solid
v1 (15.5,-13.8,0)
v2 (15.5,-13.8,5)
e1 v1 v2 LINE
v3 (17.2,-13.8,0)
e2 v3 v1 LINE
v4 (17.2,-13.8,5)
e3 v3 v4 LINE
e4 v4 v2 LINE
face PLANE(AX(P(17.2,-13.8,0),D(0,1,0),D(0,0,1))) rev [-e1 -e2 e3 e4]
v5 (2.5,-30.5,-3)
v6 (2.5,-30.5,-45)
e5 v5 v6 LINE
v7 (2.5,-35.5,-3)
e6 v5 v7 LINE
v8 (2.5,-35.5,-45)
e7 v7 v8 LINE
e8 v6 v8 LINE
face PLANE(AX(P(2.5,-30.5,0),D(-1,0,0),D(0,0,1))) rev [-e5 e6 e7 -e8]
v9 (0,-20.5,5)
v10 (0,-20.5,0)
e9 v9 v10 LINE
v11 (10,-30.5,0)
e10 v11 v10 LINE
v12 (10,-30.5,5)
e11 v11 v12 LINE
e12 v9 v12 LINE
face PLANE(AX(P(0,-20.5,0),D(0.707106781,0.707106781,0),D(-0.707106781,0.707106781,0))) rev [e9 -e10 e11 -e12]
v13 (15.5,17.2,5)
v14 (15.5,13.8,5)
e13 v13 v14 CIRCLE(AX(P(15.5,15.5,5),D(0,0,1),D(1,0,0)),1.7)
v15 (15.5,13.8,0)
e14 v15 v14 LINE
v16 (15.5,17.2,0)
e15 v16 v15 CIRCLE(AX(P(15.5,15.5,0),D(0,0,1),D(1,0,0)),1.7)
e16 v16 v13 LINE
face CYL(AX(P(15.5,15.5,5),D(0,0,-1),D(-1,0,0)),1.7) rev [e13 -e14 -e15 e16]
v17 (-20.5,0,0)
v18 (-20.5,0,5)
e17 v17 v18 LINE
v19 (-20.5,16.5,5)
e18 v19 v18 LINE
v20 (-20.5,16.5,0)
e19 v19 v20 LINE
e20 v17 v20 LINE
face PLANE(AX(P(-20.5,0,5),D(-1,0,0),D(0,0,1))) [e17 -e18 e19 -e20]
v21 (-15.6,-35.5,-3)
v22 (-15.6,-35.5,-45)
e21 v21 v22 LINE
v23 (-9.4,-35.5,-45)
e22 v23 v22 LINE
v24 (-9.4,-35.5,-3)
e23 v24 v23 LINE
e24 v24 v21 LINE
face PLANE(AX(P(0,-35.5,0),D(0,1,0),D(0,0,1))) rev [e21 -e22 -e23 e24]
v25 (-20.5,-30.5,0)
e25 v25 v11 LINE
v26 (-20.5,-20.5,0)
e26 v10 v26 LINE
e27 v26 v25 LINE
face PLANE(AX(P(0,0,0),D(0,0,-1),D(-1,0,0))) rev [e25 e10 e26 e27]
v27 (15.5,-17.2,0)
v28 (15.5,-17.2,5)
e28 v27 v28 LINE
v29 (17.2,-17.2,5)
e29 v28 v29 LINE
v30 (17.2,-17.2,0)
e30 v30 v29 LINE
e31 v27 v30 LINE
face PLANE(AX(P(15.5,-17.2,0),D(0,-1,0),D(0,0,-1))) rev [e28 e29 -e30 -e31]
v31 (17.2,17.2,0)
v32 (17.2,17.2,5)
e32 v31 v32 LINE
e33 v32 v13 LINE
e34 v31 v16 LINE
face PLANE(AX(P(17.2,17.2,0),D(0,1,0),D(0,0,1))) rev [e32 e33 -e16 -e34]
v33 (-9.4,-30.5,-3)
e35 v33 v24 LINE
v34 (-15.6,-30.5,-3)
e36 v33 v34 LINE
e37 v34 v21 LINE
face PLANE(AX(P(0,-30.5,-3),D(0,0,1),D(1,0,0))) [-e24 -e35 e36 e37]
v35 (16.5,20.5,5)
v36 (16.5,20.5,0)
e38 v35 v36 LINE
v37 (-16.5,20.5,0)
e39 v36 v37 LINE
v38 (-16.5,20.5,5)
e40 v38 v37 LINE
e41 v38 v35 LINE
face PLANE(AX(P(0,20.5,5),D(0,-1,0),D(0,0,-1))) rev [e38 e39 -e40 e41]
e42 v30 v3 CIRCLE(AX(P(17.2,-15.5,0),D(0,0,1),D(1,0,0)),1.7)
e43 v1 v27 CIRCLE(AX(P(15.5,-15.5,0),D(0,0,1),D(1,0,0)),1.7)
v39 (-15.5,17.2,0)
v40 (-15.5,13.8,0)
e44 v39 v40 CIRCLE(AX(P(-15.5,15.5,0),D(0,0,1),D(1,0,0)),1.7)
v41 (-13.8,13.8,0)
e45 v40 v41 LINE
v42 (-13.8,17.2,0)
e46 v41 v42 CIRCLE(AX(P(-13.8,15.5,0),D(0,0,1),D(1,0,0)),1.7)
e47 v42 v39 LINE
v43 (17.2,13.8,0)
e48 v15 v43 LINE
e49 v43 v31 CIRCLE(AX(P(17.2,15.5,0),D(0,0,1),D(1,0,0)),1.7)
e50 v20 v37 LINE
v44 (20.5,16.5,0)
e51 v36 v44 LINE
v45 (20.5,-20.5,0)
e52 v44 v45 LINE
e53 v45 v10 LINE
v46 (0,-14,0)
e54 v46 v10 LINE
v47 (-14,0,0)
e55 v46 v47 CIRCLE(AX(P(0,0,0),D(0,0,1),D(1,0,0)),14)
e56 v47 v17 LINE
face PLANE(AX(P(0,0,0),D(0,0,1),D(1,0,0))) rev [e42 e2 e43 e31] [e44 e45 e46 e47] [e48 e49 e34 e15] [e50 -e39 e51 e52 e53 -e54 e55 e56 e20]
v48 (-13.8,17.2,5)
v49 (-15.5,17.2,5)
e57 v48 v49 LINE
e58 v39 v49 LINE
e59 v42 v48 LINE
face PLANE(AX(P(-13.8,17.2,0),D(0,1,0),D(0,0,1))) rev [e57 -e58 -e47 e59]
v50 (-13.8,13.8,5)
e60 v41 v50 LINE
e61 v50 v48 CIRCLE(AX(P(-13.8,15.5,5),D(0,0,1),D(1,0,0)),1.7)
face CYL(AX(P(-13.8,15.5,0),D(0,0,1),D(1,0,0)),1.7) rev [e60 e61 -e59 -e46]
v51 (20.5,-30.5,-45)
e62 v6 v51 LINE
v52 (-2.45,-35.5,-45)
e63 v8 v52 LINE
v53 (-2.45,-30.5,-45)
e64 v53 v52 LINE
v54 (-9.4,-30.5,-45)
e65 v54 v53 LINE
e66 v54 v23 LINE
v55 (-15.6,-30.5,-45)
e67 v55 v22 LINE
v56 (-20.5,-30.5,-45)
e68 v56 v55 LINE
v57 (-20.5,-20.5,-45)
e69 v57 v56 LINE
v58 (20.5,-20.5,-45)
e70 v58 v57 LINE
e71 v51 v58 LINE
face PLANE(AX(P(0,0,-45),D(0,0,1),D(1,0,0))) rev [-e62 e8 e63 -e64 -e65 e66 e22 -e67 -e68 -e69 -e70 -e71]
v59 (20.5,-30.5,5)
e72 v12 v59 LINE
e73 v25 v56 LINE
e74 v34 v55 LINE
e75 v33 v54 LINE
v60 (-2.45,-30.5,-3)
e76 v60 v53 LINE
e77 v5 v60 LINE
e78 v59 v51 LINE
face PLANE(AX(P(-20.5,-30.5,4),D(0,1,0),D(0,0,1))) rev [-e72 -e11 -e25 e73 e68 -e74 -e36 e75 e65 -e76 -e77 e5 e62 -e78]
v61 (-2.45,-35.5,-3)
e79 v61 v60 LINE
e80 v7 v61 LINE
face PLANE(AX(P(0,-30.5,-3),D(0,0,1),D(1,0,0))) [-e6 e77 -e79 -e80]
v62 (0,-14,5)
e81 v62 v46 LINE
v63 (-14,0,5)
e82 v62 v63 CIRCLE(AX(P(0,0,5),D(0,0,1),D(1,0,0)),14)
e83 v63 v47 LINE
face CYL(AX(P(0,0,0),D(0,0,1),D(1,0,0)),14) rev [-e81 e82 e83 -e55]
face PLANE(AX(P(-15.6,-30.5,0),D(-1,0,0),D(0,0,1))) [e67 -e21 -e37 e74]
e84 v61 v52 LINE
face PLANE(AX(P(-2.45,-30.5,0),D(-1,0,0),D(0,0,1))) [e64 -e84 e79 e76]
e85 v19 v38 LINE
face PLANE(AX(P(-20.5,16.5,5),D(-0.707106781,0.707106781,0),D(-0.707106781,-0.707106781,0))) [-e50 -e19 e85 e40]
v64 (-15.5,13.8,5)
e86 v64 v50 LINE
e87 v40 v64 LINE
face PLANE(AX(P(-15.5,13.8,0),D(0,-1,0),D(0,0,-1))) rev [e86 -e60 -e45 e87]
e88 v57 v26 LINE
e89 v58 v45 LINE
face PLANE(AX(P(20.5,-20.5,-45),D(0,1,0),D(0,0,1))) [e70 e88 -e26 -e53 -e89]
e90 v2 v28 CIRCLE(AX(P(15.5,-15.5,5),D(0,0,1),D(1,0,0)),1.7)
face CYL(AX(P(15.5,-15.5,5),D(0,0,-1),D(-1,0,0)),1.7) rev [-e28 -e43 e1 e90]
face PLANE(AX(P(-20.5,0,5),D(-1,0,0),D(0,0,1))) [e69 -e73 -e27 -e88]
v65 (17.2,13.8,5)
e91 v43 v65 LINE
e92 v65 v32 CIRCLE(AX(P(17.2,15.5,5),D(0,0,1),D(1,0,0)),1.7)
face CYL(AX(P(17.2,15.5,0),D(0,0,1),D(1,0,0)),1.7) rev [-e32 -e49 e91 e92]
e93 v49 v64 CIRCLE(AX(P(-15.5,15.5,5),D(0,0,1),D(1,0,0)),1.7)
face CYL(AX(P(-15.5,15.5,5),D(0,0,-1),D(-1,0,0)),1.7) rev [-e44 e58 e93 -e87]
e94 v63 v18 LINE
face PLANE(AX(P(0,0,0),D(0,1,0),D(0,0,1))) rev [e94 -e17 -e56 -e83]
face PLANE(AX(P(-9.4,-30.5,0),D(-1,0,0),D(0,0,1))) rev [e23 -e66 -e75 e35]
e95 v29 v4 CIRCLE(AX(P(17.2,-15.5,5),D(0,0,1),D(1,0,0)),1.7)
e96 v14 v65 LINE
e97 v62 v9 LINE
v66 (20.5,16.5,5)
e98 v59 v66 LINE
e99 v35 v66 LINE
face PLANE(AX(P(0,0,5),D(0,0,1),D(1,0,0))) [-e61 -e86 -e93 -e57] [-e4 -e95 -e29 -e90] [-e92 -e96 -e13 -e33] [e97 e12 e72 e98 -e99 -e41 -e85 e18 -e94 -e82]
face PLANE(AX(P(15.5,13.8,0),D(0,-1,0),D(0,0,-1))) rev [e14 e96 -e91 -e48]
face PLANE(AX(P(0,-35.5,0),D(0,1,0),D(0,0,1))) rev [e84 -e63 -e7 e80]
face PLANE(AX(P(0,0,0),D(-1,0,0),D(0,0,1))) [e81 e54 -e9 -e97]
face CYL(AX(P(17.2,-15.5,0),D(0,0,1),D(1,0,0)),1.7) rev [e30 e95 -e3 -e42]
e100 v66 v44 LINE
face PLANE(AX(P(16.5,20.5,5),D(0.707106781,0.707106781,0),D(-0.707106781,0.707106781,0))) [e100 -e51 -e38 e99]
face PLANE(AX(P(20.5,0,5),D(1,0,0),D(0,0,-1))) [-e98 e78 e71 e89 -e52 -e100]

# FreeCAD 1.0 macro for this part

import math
import FreeCAD as App
import Part
import Sketcher

V = App.Vector
Q = App.Units.Quantity

doc = App.newDocument("Part")
body = doc.addObject("PartDesign::Body", "Body")

# Sketch on XY plane
sketch1 = doc.addObject("Sketcher::SketchObject", "Sketch")
body.addObject(sketch1)
sketch1.AttachmentSupport = (doc.XY_Plane, [""])
sketch1.MapMode = "FlatFace"
sketch1.addGeometry(Part.LineSegment(V(-20.5, -16.5, 0), V(-16.5, -20.5, 0)), False)
sketch1.addGeometry(Part.LineSegment(V(-16.5, -20.5, 0), V(16.5, -20.5, 0)), False)
sketch1.addGeometry(Part.LineSegment(V(16.5, -20.5, 0), V(20.5, -16.5, 0)), False)
sketch1.addGeometry(Part.LineSegment(V(20.5, -16.5, 0), V(20.5, 16.5, 0)), False)
sketch1.addGeometry(Part.LineSegment(V(20.5, 16.5, 0), V(16.5, 20.5, 0)), False)
sketch1.addGeometry(Part.LineSegment(V(16.5, 20.5, 0), V(-16.5, 20.5, 0)), False)
sketch1.addGeometry(Part.LineSegment(V(-16.5, 20.5, 0), V(-20.5, 16.5, 0)), False)
sketch1.addGeometry(Part.LineSegment(V(-20.5, 16.5, 0), V(-20.5, -16.5, 0)), False)
sketch1.addGeometry(Part.Circle(V(-15.5, -15.5, 0), V(0, 0, 1), 1.7), False)
sketch1.addGeometry(Part.Circle(V(15.5, -15.5, 0), V(0, 0, 1), 1.7), False)
sketch1.addGeometry(Part.Circle(V(-15.5, 15.5, 0), V(0, 0, 1), 1.7), False)
sketch1.addGeometry(Part.Circle(V(0, 0, 0), V(0, 0, 1), 11), False)
sketch1.addGeometry(Part.Circle(V(15.5, 15.5, 0), V(0, 0, 1), 1.7), False)
sketch1.addConstraint(Sketcher.Constraint("Coincident", 0, 2, 1, 1))
sketch1.addConstraint(Sketcher.Constraint("Coincident", 1, 2, 2, 1))
sketch1.addConstraint(Sketcher.Constraint("Coincident", 2, 2, 3, 1))
sketch1.addConstraint(Sketcher.Constraint("Coincident", 3, 2, 4, 1))
sketch1.addConstraint(Sketcher.Constraint("Coincident", 4, 2, 5, 1))
sketch1.addConstraint(Sketcher.Constraint("Coincident", 5, 2, 6, 1))
sketch1.addConstraint(Sketcher.Constraint("Coincident", 6, 2, 7, 1))
sketch1.addConstraint(Sketcher.Constraint("Coincident", 7, 2, 0, 1))
sketch1.addConstraint(Sketcher.Constraint("Horizontal", 1))
sketch1.addConstraint(Sketcher.Constraint("Vertical", 3))
sketch1.addConstraint(Sketcher.Constraint("Horizontal", 5))
sketch1.addConstraint(Sketcher.Constraint("Vertical", 7))
sketch1.addConstraint(Sketcher.Constraint("Coincident", 11, 3, -1, 1))
sketch1.addConstraint(Sketcher.Constraint("Equal", 8, 9))
sketch1.addConstraint(Sketcher.Constraint("Equal", 9, 10))
sketch1.addConstraint(Sketcher.Constraint("Equal", 10, 12))
sketch1.addConstraint(Sketcher.Constraint("Symmetric", 9, 3, 10, 3, -1, 1))
sketch1.addConstraint(Sketcher.Constraint("Symmetric", 8, 3, 12, 3, -1, 1))
sketch1.addConstraint(Sketcher.Constraint("Symmetric", 0, 2, 4, 2, -1, 1))
sketch1.addConstraint(Sketcher.Constraint("Symmetric", 2, 2, 6, 2, -1, 1))
sketch1.addConstraint(Sketcher.Constraint("Symmetric", 8, 3, 9, 3, -2))
sketch1.addConstraint(Sketcher.Constraint("Perpendicular", 0, 2))
sketch1.addConstraint(Sketcher.Constraint("Perpendicular", 2, 4))
sketch1.addConstraint(Sketcher.Constraint("Perpendicular", 4, 6))
sketch1.addConstraint(Sketcher.Constraint("Horizontal", 3, 2, 6, 2))
sketch1.addConstraint(Sketcher.Constraint("Vertical", 1, 2, 4, 2))
sketch1.addConstraint(Sketcher.Constraint("Equal", 5, 3))
sketch1.addConstraint(Sketcher.Constraint("Diameter", 11, 22.0))
sketch1.addConstraint(Sketcher.Constraint("Diameter", 8, 3.4))
sketch1.addConstraint(Sketcher.Constraint("DistanceX", 1, 1, 1, 2, 33.0))
sketch1.addConstraint(Sketcher.Constraint("DistanceX", 8, 3, 9, 3, 31.0))
sketch1.addConstraint(Sketcher.Constraint("DistanceY", 8, 3, 10, 3, 31.0))
sketch1.addConstraint(Sketcher.Constraint("DistanceY", 0, 2, 8, 3, 5.0))
pad1 = doc.addObject("PartDesign::Pad", "Pad")
body.addObject(pad1)
pad1.Profile = sketch1
pad1.Length = 5

# Sketch on XY plane
sketch2 = doc.addObject("Sketcher::SketchObject", "Sketch001")
body.addObject(sketch2)
sketch2.AttachmentSupport = (doc.XY_Plane, [""])
sketch2.MapMode = "FlatFace"
sketch2.addGeometry(Part.LineSegment(V(-20, -30, 0), V(-20, -16, 0)), False)
sketch2.addGeometry(Part.LineSegment(V(-20, -16, 0), V(-16, -20, 0)), False)
sketch2.addGeometry(Part.LineSegment(V(-16, -20, 0), V(16, -20, 0)), False)
sketch2.addGeometry(Part.LineSegment(V(16, -20, 0), V(20, -16, 0)), False)
sketch2.addGeometry(Part.LineSegment(V(20, -16, 0), V(20, -30, 0)), False)
sketch2.addGeometry(Part.LineSegment(V(20, -30, 0), V(-20, -30, 0)), False)
sketch2.addConstraint(Sketcher.Constraint("Coincident", 0, 2, 1, 1))
sketch2.addConstraint(Sketcher.Constraint("Coincident", 1, 2, 2, 1))
sketch2.addConstraint(Sketcher.Constraint("Coincident", 2, 2, 3, 1))
sketch2.addConstraint(Sketcher.Constraint("Coincident", 3, 2, 4, 1))
sketch2.addConstraint(Sketcher.Constraint("Coincident", 4, 2, 5, 1))
sketch2.addConstraint(Sketcher.Constraint("Coincident", 5, 2, 0, 1))
sketch2.addConstraint(Sketcher.Constraint("Vertical", 0))
sketch2.addConstraint(Sketcher.Constraint("Horizontal", 2))
sketch2.addConstraint(Sketcher.Constraint("Vertical", 4))
sketch2.addConstraint(Sketcher.Constraint("Horizontal", 5))
sketch2.addConstraint(Sketcher.Constraint("Symmetric", 0, 2, 3, 2, -2))
sketch2.addConstraint(Sketcher.Constraint("Perpendicular", 1, 3))
sketch2.addConstraint(Sketcher.Constraint("Equal", 1, 3))
sketch2.addConstraint(Sketcher.Constraint("DistanceX", 2, 1, 2, 2, 33.0))
sketch2.addConstraint(Sketcher.Constraint("DistanceX", 5, 2, 5, 1, 41.0))
sketch2.addConstraint(Sketcher.Constraint("DistanceY", 0, 1, 0, 2, 14.0))
sketch2.addConstraint(Sketcher.Constraint("DistanceY", 0, 2, -1, 1, 16.5))
pad2 = doc.addObject("PartDesign::Pad", "Pad001")
body.addObject(pad2)
pad2.Profile = sketch2
pad2.Length = 4

# Sketch on XY plane
sketch3 = doc.addObject("Sketcher::SketchObject", "Sketch002")
body.addObject(sketch3)
sketch3.AttachmentSupport = (doc.XY_Plane, [""])
sketch3.MapMode = "FlatFace"
sketch3.addGeometry(Part.LineSegment(V(20, -20, 0), V(20, -30, 0)), False)
sketch3.addGeometry(Part.LineSegment(V(20, -30, 0), V(-20, -30, 0)), False)
sketch3.addGeometry(Part.LineSegment(V(-20, -30, 0), V(-20, -20, 0)), False)
sketch3.addGeometry(Part.LineSegment(V(-20, -20, 0), V(20, -20, 0)), False)
sketch3.addConstraint(Sketcher.Constraint("Coincident", 0, 2, 1, 1))
sketch3.addConstraint(Sketcher.Constraint("Coincident", 1, 2, 2, 1))
sketch3.addConstraint(Sketcher.Constraint("Coincident", 2, 2, 3, 1))
sketch3.addConstraint(Sketcher.Constraint("Coincident", 3, 2, 0, 1))
sketch3.addConstraint(Sketcher.Constraint("Vertical", 0))
sketch3.addConstraint(Sketcher.Constraint("Horizontal", 1))
sketch3.addConstraint(Sketcher.Constraint("Vertical", 2))
sketch3.addConstraint(Sketcher.Constraint("Horizontal", 3))
sketch3.addConstraint(Sketcher.Constraint("DistanceX", 1, 2, 1, 1, 41.0))
sketch3.addConstraint(Sketcher.Constraint("DistanceY", 0, 2, 0, 1, 10.0))
sketch3.addConstraint(Sketcher.Constraint("DistanceX", -1, 1, 0, 2, 20.5))
sketch3.addConstraint(Sketcher.Constraint("DistanceY", 0, 2, -1, 1, 30.5))
pad3 = doc.addObject("PartDesign::Pad", "Pad002")
body.addObject(pad3)
pad3.Profile = sketch3
pad3.Length = 45
pad3.Reversed = True

# Sketch on XZ plane
sketch4 = doc.addObject("Sketcher::SketchObject", "Sketch003")
body.addObject(sketch4)
sketch4.AttachmentSupport = (doc.XZ_Plane, [""])
sketch4.MapMode = "FlatFace"
sketch4.AttachmentOffset = App.Placement(V(0, 0, 30.5), App.Rotation())
sketch4.addGeometry(Part.LineSegment(V(-14, 4, 0), V(-14, -45, 0)), False)
sketch4.addGeometry(Part.LineSegment(V(-14, -45, 0), V(-7, -45, 0)), False)
sketch4.addGeometry(Part.LineSegment(V(-7, -45, 0), V(-7, 4, 0)), False)
sketch4.addGeometry(Part.LineSegment(V(-7, 4, 0), V(-14, 4, 0)), False)
sketch4.addConstraint(Sketcher.Constraint("Coincident", 0, 2, 1, 1))
sketch4.addConstraint(Sketcher.Constraint("Coincident", 1, 2, 2, 1))
sketch4.addConstraint(Sketcher.Constraint("Coincident", 2, 2, 3, 1))
sketch4.addConstraint(Sketcher.Constraint("Coincident", 3, 2, 0, 1))
sketch4.addConstraint(Sketcher.Constraint("Vertical", 0))
sketch4.addConstraint(Sketcher.Constraint("Horizontal", 1))
sketch4.addConstraint(Sketcher.Constraint("Vertical", 2))
sketch4.addConstraint(Sketcher.Constraint("Horizontal", 3))
sketch4.addConstraint(Sketcher.Constraint("DistanceY", 0, 2, 0, 1, 49.0))
sketch4.addConstraint(Sketcher.Constraint("DistanceX", 1, 1, 1, 2, 6.2))
sketch4.addConstraint(Sketcher.Constraint("DistanceY", 0, 2, -1, 1, 45.0))
sketch4.addConstraint(Sketcher.Constraint("DistanceX", 0, 2, -1, 1, 13.6))
pad4 = doc.addObject("PartDesign::Pad", "Pad003")
body.addObject(pad4)
pad4.Profile = sketch4
pad4.Length = 5

# Sketch on XY plane
sketch5 = doc.addObject("Sketcher::SketchObject", "Sketch004")
body.addObject(sketch5)
sketch5.AttachmentSupport = (doc.XY_Plane, [""])
sketch5.MapMode = "FlatFace"
sketch5.AttachmentOffset = App.Placement(V(0, 0, 5), App.Rotation())
sketch5.addGeometry(Part.LineSegment(V(15.5, 17.2, 0), V(15.5, 13.8, 0)), False)
sketch5.addGeometry(Part.LineSegment(V(15.5, 13.8, 0), V(17.2, 13.8, 0)), False)
sketch5.addGeometry(Part.ArcOfCircle(Part.Circle(V(17.2, 15.5, 0), V(0, 0, 1), 1.7), math.radians(-90), math.radians(90)), False)
sketch5.addGeometry(Part.LineSegment(V(17.2, 17.2, 0), V(15.5, 17.2, 0)), False)
sketch5.addGeometry(Part.LineSegment(V(15.5, -13.8, 0), V(15.5, -17.2, 0)), False)
sketch5.addGeometry(Part.LineSegment(V(15.5, -17.2, 0), V(17.2, -17.2, 0)), False)
sketch5.addGeometry(Part.ArcOfCircle(Part.Circle(V(17.2, -15.5, 0), V(0, 0, 1), 1.7), math.radians(-90), math.radians(90)), False)
sketch5.addGeometry(Part.LineSegment(V(17.2, -13.8, 0), V(15.5, -13.8, 0)), False)
sketch5.addGeometry(Part.LineSegment(V(-15.5, -13.8, 0), V(-15.5, -17.2, 0)), False)
sketch5.addGeometry(Part.LineSegment(V(-15.5, -17.2, 0), V(-13.8, -17.2, 0)), False)
sketch5.addGeometry(Part.ArcOfCircle(Part.Circle(V(-13.8, -15.5, 0), V(0, 0, 1), 1.7), math.radians(-90), math.radians(90)), False)
sketch5.addGeometry(Part.LineSegment(V(-13.8, -13.8, 0), V(-15.5, -13.8, 0)), False)
sketch5.addGeometry(Part.LineSegment(V(-15.5, 17.2, 0), V(-15.5, 13.8, 0)), False)
sketch5.addGeometry(Part.LineSegment(V(-15.5, 13.8, 0), V(-13.8, 13.8, 0)), False)
sketch5.addGeometry(Part.ArcOfCircle(Part.Circle(V(-13.8, 15.5, 0), V(0, 0, 1), 1.7), math.radians(-90), math.radians(90)), False)
sketch5.addGeometry(Part.LineSegment(V(-13.8, 17.2, 0), V(-15.5, 17.2, 0)), False)
sketch5.addConstraint(Sketcher.Constraint("Coincident", 0, 2, 1, 1))
sketch5.addConstraint(Sketcher.Constraint("Tangent", 1, 2, 2, 1))
sketch5.addConstraint(Sketcher.Constraint("Tangent", 2, 2, 3, 1))
sketch5.addConstraint(Sketcher.Constraint("Coincident", 3, 2, 0, 1))
sketch5.addConstraint(Sketcher.Constraint("Coincident", 4, 2, 5, 1))
sketch5.addConstraint(Sketcher.Constraint("Tangent", 5, 2, 6, 1))
sketch5.addConstraint(Sketcher.Constraint("Tangent", 6, 2, 7, 1))
sketch5.addConstraint(Sketcher.Constraint("Coincident", 7, 2, 4, 1))
sketch5.addConstraint(Sketcher.Constraint("Coincident", 8, 2, 9, 1))
sketch5.addConstraint(Sketcher.Constraint("Tangent", 9, 2, 10, 1))
sketch5.addConstraint(Sketcher.Constraint("Tangent", 10, 2, 11, 1))
sketch5.addConstraint(Sketcher.Constraint("Coincident", 11, 2, 8, 1))
sketch5.addConstraint(Sketcher.Constraint("Coincident", 12, 2, 13, 1))
sketch5.addConstraint(Sketcher.Constraint("Tangent", 13, 2, 14, 1))
sketch5.addConstraint(Sketcher.Constraint("Tangent", 14, 2, 15, 1))
sketch5.addConstraint(Sketcher.Constraint("Coincident", 15, 2, 12, 1))
sketch5.addConstraint(Sketcher.Constraint("Vertical", 0))
sketch5.addConstraint(Sketcher.Constraint("Horizontal", 1))
sketch5.addConstraint(Sketcher.Constraint("Horizontal", 3))
sketch5.addConstraint(Sketcher.Constraint("Vertical", 4))
sketch5.addConstraint(Sketcher.Constraint("Horizontal", 5))
sketch5.addConstraint(Sketcher.Constraint("Horizontal", 7))
sketch5.addConstraint(Sketcher.Constraint("Vertical", 8))
sketch5.addConstraint(Sketcher.Constraint("Horizontal", 9))
sketch5.addConstraint(Sketcher.Constraint("Horizontal", 11))
sketch5.addConstraint(Sketcher.Constraint("Vertical", 12))
sketch5.addConstraint(Sketcher.Constraint("Horizontal", 13))
sketch5.addConstraint(Sketcher.Constraint("Horizontal", 15))
sketch5.addConstraint(Sketcher.Constraint("Equal", 2, 6))
sketch5.addConstraint(Sketcher.Constraint("Equal", 6, 10))
sketch5.addConstraint(Sketcher.Constraint("Equal", 10, 14))
sketch5.addConstraint(Sketcher.Constraint("Symmetric", 3, 2, 8, 2, -1, 1))
sketch5.addConstraint(Sketcher.Constraint("Symmetric", 7, 2, 12, 2, -1, 1))
sketch5.addConstraint(Sketcher.Constraint("Symmetric", 4, 2, 8, 2, -2))
sketch5.addConstraint(Sketcher.Constraint("Vertical", 2, 3, 6, 3))
sketch5.addConstraint(Sketcher.Constraint("Vertical", 10, 3, 14, 3))
sketch5.addConstraint(Sketcher.Constraint("Equal", 7, 9))
sketch5.addConstraint(Sketcher.Constraint("Radius", 2, 1.7))
sketch5.addConstraint(Sketcher.Constraint("DistanceX", 1, 1, 1, 2, 1.7))
sketch5.addConstraint(Sketcher.Constraint("DistanceY", 6, 3, 2, 3, 31.0))
sketch5.addConstraint(Sketcher.Constraint("DistanceX", 10, 3, 6, 3, 31.0))
pocket1 = doc.addObject("PartDesign::Pocket", "Pocket")
body.addObject(pocket1)
pocket1.Profile = sketch5
pocket1.Length = 5

# Sketch on XZ plane
sketch6 = doc.addObject("Sketcher::SketchObject", "Sketch005")
body.addObject(sketch6)
sketch6.AttachmentSupport = (doc.XZ_Plane, [""])
sketch6.MapMode = "FlatFace"
sketch6.AttachmentOffset = App.Placement(V(0, 0, 35.5), App.Rotation())
sketch6.addGeometry(Part.LineSegment(V(-7.4, 1, 0), V(-7.4, 4, 0)), False)
sketch6.addGeometry(Part.LineSegment(V(-7.4, 4, 0), V(-13.6, 4, 0)), False)
sketch6.addGeometry(Part.LineSegment(V(-13.6, 4, 0), V(-13.6, 1, 0)), False)
sketch6.addGeometry(Part.LineSegment(V(-13.6, 1, 0), V(-7.4, 1, 0)), False)
sketch6.addConstraint(Sketcher.Constraint("Coincident", 0, 2, 1, 1))
sketch6.addConstraint(Sketcher.Constraint("Coincident", 1, 2, 2, 1))
sketch6.addConstraint(Sketcher.Constraint("Coincident", 2, 2, 3, 1))
sketch6.addConstraint(Sketcher.Constraint("Coincident", 3, 2, 0, 1))
sketch6.addConstraint(Sketcher.Constraint("Vertical", 0))
sketch6.addConstraint(Sketcher.Constraint("Horizontal", 1))
sketch6.addConstraint(Sketcher.Constraint("Vertical", 2))
sketch6.addConstraint(Sketcher.Constraint("Horizontal", 3))
sketch6.addConstraint(Sketcher.Constraint("DistanceY", 0, 1, 0, 2, 3.0))
sketch6.addConstraint(Sketcher.Constraint("DistanceX", 1, 2, 1, 1, 6.2))
sketch6.addConstraint(Sketcher.Constraint("DistanceY", -1, 1, 0, 2, 4.0))
sketch6.addConstraint(Sketcher.Constraint("DistanceX", 0, 2, -1, 1, 7.4))
pocket2 = doc.addObject("PartDesign::Pocket", "Pocket001")
body.addObject(pocket2)
pocket2.Profile = sketch6
pocket2.Length = 5

# Sketch on XY plane
sketch7 = doc.addObject("Sketcher::SketchObject", "Sketch006")
body.addObject(sketch7)
sketch7.AttachmentSupport = (doc.XY_Plane, [""])
sketch7.MapMode = "FlatFace"
sketch7.AttachmentOffset = App.Placement(V(0, 0, 5), App.Rotation())
sketch7.addGeometry(Part.Circle(V(0, 0, 0), V(0, 0, 1), 12), False)
sketch7.addConstraint(Sketcher.Constraint("Coincident", 0, 3, -1, 1))
sketch7.addConstraint(Sketcher.Constraint("Diameter", 0, 23.0))
pocket3 = doc.addObject("PartDesign::Pocket", "Pocket002")
body.addObject(pocket3)
pocket3.Profile = sketch7
pocket3.Length = 5

# Sketch on XZ plane
sketch8 = doc.addObject("Sketcher::SketchObject", "Sketch007")
body.addObject(sketch8)
sketch8.AttachmentSupport = (doc.XZ_Plane, [""])
sketch8.MapMode = "FlatFace"
sketch8.AttachmentOffset = App.Placement(V(0, 0, 30.5), App.Rotation())
sketch8.addGeometry(Part.LineSegment(V(0, 1, 0), V(0, -45, 0)), False)
sketch8.addGeometry(Part.LineSegment(V(0, -45, 0), V(4, -45, 0)), False)
sketch8.addGeometry(Part.LineSegment(V(4, -45, 0), V(4, 1, 0)), False)
sketch8.addGeometry(Part.LineSegment(V(4, 1, 0), V(0, 1, 0)), False)
sketch8.addConstraint(Sketcher.Constraint("Coincident", 0, 2, 1, 1))
sketch8.addConstraint(Sketcher.Constraint("Coincident", 1, 2, 2, 1))
sketch8.addConstraint(Sketcher.Constraint("Coincident", 2, 2, 3, 1))
sketch8.addConstraint(Sketcher.Constraint("Coincident", 3, 2, 0, 1))
sketch8.addConstraint(Sketcher.Constraint("Vertical", 0))
sketch8.addConstraint(Sketcher.Constraint("Horizontal", 1))
sketch8.addConstraint(Sketcher.Constraint("Vertical", 2))
sketch8.addConstraint(Sketcher.Constraint("Horizontal", 3))
sketch8.addConstraint(Sketcher.Constraint("DistanceX", 1, 1, 1, 2, 5.0))
sketch8.addConstraint(Sketcher.Constraint("DistanceY", 0, 2, 0, 1, 46.0))
sketch8.addConstraint(Sketcher.Constraint("DistanceY", 0, 2, -1, 1, 45.0))
sketch8.addConstraint(Sketcher.Constraint("DistanceX", 0, 2, -1, 1, 0.5))
pad5 = doc.addObject("PartDesign::Pad", "Pad004")
body.addObject(pad5)
pad5.Profile = sketch8
pad5.Length = 5

# Sketch on XY plane
sketch9 = doc.addObject("Sketcher::SketchObject", "Sketch008")
body.addObject(sketch9)
sketch9.AttachmentSupport = (doc.XY_Plane, [""])
sketch9.MapMode = "FlatFace"
sketch9.AttachmentOffset = App.Placement(V(0, 0, 5), App.Rotation())
sketch9.addGeometry(Part.Circle(V(0, 0, 0), V(0, 0, 1), 14), False)
sketch9.addConstraint(Sketcher.Constraint("Coincident", 0, 3, -1, 1))
sketch9.addConstraint(Sketcher.Constraint("Diameter", 0, 28.0))
pocket4 = doc.addObject("PartDesign::Pocket", "Pocket003")
body.addObject(pocket4)
pocket4.Profile = sketch9
pocket4.Length = 5

# Sketch on XY plane
sketch10 = doc.addObject("Sketcher::SketchObject", "Sketch009")
body.addObject(sketch10)
sketch10.AttachmentSupport = (doc.XY_Plane, [""])
sketch10.MapMode = "FlatFace"
sketch10.AttachmentOffset = App.Placement(V(0, 0, 5), App.Rotation())
sketch10.addGeometry(Part.LineSegment(V(-20, 0, 0), V(-20, -30, 0)), False)
sketch10.addGeometry(Part.LineSegment(V(-20, -30, 0), V(0, -30, 0)), False)
sketch10.addGeometry(Part.LineSegment(V(0, -30, 0), V(0, 0, 0)), False)
sketch10.addGeometry(Part.LineSegment(V(0, 0, 0), V(-20, 0, 0)), False)
sketch10.addConstraint(Sketcher.Constraint("Coincident", 0, 2, 1, 1))
sketch10.addConstraint(Sketcher.Constraint("Coincident", 1, 2, 2, 1))
sketch10.addConstraint(Sketcher.Constraint("Coincident", 2, 2, 3, 1))
sketch10.addConstraint(Sketcher.Constraint("Coincident", 3, 2, 0, 1))
sketch10.addConstraint(Sketcher.Constraint("Vertical", 0))
sketch10.addConstraint(Sketcher.Constraint("Horizontal", 1))
sketch10.addConstraint(Sketcher.Constraint("Vertical", 2))
sketch10.addConstraint(Sketcher.Constraint("Horizontal", 3))
sketch10.addConstraint(Sketcher.Constraint("Coincident", 2, 2, -1, 1))
sketch10.addConstraint(Sketcher.Constraint("DistanceX", 1, 1, 1, 2, 20.5))
sketch10.addConstraint(Sketcher.Constraint("DistanceY", 0, 2, 0, 1, 30.5))
pocket5 = doc.addObject("PartDesign::Pocket", "Pocket004")
body.addObject(pocket5)
pocket5.Profile = sketch10
pocket5.Length = 5

# Sketch on YZ plane
sketch11 = doc.addObject("Sketcher::SketchObject", "Sketch010")
body.addObject(sketch11)
sketch11.AttachmentSupport = (doc.YZ_Plane, [""])
sketch11.MapMode = "FlatFace"
sketch11.AttachmentOffset = App.Placement(V(0, 0, -13.6), App.Rotation())
sketch11.addGeometry(Part.LineSegment(V(-30.5, 0, 0), V(-35.5, 0, 0)), False)
sketch11.addGeometry(Part.LineSegment(V(-35.5, 0, 0), V(-35.5, 1, 0)), False)
sketch11.addGeometry(Part.LineSegment(V(-35.5, 1, 0), V(-30.5, 1, 0)), False)
sketch11.addGeometry(Part.LineSegment(V(-30.5, 1, 0), V(-30.5, 0, 0)), False)
sketch11.addConstraint(Sketcher.Constraint("Coincident", 0, 2, 1, 1))
sketch11.addConstraint(Sketcher.Constraint("Coincident", 1, 2, 2, 1))
sketch11.addConstraint(Sketcher.Constraint("Coincident", 2, 2, 3, 1))
sketch11.addConstraint(Sketcher.Constraint("Coincident", 3, 2, 0, 1))
sketch11.addConstraint(Sketcher.Constraint("Horizontal", 0))
sketch11.addConstraint(Sketcher.Constraint("Vertical", 1))
sketch11.addConstraint(Sketcher.Constraint("Horizontal", 2))
sketch11.addConstraint(Sketcher.Constraint("Vertical", 3))
sketch11.addConstraint(Sketcher.Constraint("PointOnObject", 0, 2, -1))
sketch11.addConstraint(Sketcher.Constraint("DistanceX", 0, 2, 0, 1, 5.0))
sketch11.addConstraint(Sketcher.Constraint("DistanceY", 1, 1, 1, 2, 1.0))
sketch11.addConstraint(Sketcher.Constraint("DistanceX", 0, 2, -1, 1, 35.5))
pocket6 = doc.addObject("PartDesign::Pocket", "Pocket005")
body.addObject(pocket6)
pocket6.Profile = sketch11
pocket6.Length = 20
pocket6.Reversed = True

# Sketch on XY plane
sketch12 = doc.addObject("Sketcher::SketchObject", "Sketch011")
body.addObject(sketch12)
sketch12.AttachmentSupport = (doc.XY_Plane, [""])
sketch12.MapMode = "FlatFace"
sketch12.AttachmentOffset = App.Placement(V(0, 0, 5), App.Rotation())
sketch12.addGeometry(Part.LineSegment(V(10, -30, 0), V(0, -20, 0)), False)
sketch12.addGeometry(Part.LineSegment(V(0, -20, 0), V(0, -30, 0)), False)
sketch12.addGeometry(Part.LineSegment(V(0, -30, 0), V(10, -30, 0)), False)
sketch12.addConstraint(Sketcher.Constraint("Coincident", 0, 2, 1, 1))
sketch12.addConstraint(Sketcher.Constraint("Coincident", 1, 2, 2, 1))
sketch12.addConstraint(Sketcher.Constraint("Coincident", 2, 2, 0, 1))
sketch12.addConstraint(Sketcher.Constraint("Vertical", 1))
sketch12.addConstraint(Sketcher.Constraint("Horizontal", 2))
sketch12.addConstraint(Sketcher.Constraint("PointOnObject", 0, 2, -2))
sketch12.addConstraint(Sketcher.Constraint("Equal", 2, 1))
sketch12.addConstraint(Sketcher.Constraint("DistanceX", 2, 1, 2, 2, 10.0))
sketch12.addConstraint(Sketcher.Constraint("DistanceY", 0, 2, -1, 1, 20.5))
pocket7 = doc.addObject("PartDesign::Pocket", "Pocket006")
body.addObject(pocket7)
pocket7.Profile = sketch12
pocket7.Length = 5

# Sketch on XY plane
sketch13 = doc.addObject("Sketcher::SketchObject", "Sketch012")
body.addObject(sketch13)
sketch13.AttachmentSupport = (doc.XY_Plane, [""])
sketch13.MapMode = "FlatFace"
sketch13.AttachmentOffset = App.Placement(V(0, 0, 4), App.Rotation())
sketch13.addGeometry(Part.LineSegment(V(0, -20, 0), V(10, -30, 0)), False)
sketch13.addGeometry(Part.LineSegment(V(10, -30, 0), V(20, -30, 0)), False)
sketch13.addGeometry(Part.LineSegment(V(20, -30, 0), V(20, -16, 0)), False)
sketch13.addGeometry(Part.LineSegment(V(20, -16, 0), V(16, -20, 0)), False)
sketch13.addGeometry(Part.LineSegment(V(16, -20, 0), V(0, -20, 0)), False)
sketch13.addConstraint(Sketcher.Constraint("Coincident", 0, 2, 1, 1))
sketch13.addConstraint(Sketcher.Constraint("Coincident", 1, 2, 2, 1))
sketch13.addConstraint(Sketcher.Constraint("Coincident", 2, 2, 3, 1))
sketch13.addConstraint(Sketcher.Constraint("Coincident", 3, 2, 4, 1))
sketch13.addConstraint(Sketcher.Constraint("Coincident", 4, 2, 0, 1))
sketch13.addConstraint(Sketcher.Constraint("Horizontal", 1))
sketch13.addConstraint(Sketcher.Constraint("Vertical", 2))
sketch13.addConstraint(Sketcher.Constraint("Horizontal", 4))
sketch13.addConstraint(Sketcher.Constraint("PointOnObject", 4, 2, -2))
sketch13.addConstraint(Sketcher.Constraint("Perpendicular", 0, 3))
sketch13.addConstraint(Sketcher.Constraint("DistanceY", 2, 1, 2, 2, 14.0))
sketch13.addConstraint(Sketcher.Constraint("Angle", 0, Q("-45 deg")))
sketch13.addConstraint(Sketcher.Constraint("DistanceX", 1, 1, 1, 2, 10.5))
sketch13.addConstraint(Sketcher.Constraint("DistanceX", 4, 2, 4, 1, 16.5))
sketch13.addConstraint(Sketcher.Constraint("DistanceY", 0, 2, -1, 1, 30.5))
pad6 = doc.addObject("PartDesign::Pad", "Pad005")
body.addObject(pad6)
pad6.Profile = sketch13
pad6.Length = 1

# Sketch on XZ plane
sketch14 = doc.addObject("Sketcher::SketchObject", "Sketch013")
body.addObject(sketch14)
sketch14.AttachmentSupport = (doc.XZ_Plane, [""])
sketch14.MapMode = "FlatFace"
sketch14.AttachmentOffset = App.Placement(V(0, 0, 35.5), App.Rotation())
sketch14.addGeometry(Part.LineSegment(V(-15.6, 0, 0), V(-15.6, -45, 0)), False)
sketch14.addGeometry(Part.LineSegment(V(-15.6, -45, 0), V(-13.6, -45, 0)), False)
sketch14.addGeometry(Part.LineSegment(V(-13.6, -45, 0), V(-13.6, 0, 0)), False)
sketch14.addGeometry(Part.LineSegment(V(-13.6, 0, 0), V(-15.6, 0, 0)), False)
sketch14.addGeometry(Part.LineSegment(V(-2.5, 0, 0), V(-2.5, -45, 0)), False)
sketch14.addGeometry(Part.LineSegment(V(-2.5, -45, 0), V(-0.5, -45, 0)), False)
sketch14.addGeometry(Part.LineSegment(V(-0.5, -45, 0), V(-0.5, 0, 0)), False)
sketch14.addGeometry(Part.LineSegment(V(-0.5, 0, 0), V(-2.5, 0, 0)), False)
sketch14.addConstraint(Sketcher.Constraint("Coincident", 0, 2, 1, 1))
sketch14.addConstraint(Sketcher.Constraint("Coincident", 1, 2, 2, 1))
sketch14.addConstraint(Sketcher.Constraint("Coincident", 2, 2, 3, 1))
sketch14.addConstraint(Sketcher.Constraint("Coincident", 3, 2, 0, 1))
sketch14.addConstraint(Sketcher.Constraint("Coincident", 4, 2, 5, 1))
sketch14.addConstraint(Sketcher.Constraint("Coincident", 5, 2, 6, 1))
sketch14.addConstraint(Sketcher.Constraint("Coincident", 6, 2, 7, 1))
sketch14.addConstraint(Sketcher.Constraint("Coincident", 7, 2, 4, 1))
sketch14.addConstraint(Sketcher.Constraint("Vertical", 0))
sketch14.addConstraint(Sketcher.Constraint("Horizontal", 1))
sketch14.addConstraint(Sketcher.Constraint("Vertical", 2))
sketch14.addConstraint(Sketcher.Constraint("Horizontal", 3))
sketch14.addConstraint(Sketcher.Constraint("Vertical", 4))
sketch14.addConstraint(Sketcher.Constraint("Horizontal", 5))
sketch14.addConstraint(Sketcher.Constraint("Vertical", 6))
sketch14.addConstraint(Sketcher.Constraint("Horizontal", 7))
sketch14.addConstraint(Sketcher.Constraint("PointOnObject", 2, 2, -1))
sketch14.addConstraint(Sketcher.Constraint("PointOnObject", 6, 2, -1))
sketch14.addConstraint(Sketcher.Constraint("Horizontal", 1, 2, 4, 2))
sketch14.addConstraint(Sketcher.Constraint("DistanceX", 1, 1, 1, 2, 2.0))
sketch14.addConstraint(Sketcher.Constraint("DistanceY", 0, 2, 0, 1, 45.0))
sketch14.addConstraint(Sketcher.Constraint("DistanceX", 5, 1, 5, 2, 1.95))
sketch14.addConstraint(Sketcher.Constraint("DistanceX", 0, 2, -1, 1, 15.6))
sketch14.addConstraint(Sketcher.Constraint("DistanceX", 5, 2, -1, 1, 0.5))
pad7 = doc.addObject("PartDesign::Pad", "Pad006")
body.addObject(pad7)
pad7.Profile = sketch14
pad7.Length = 5
pad7.Reversed = True

# Sketch on XZ plane
sketch15 = doc.addObject("Sketcher::SketchObject", "Sketch014")
body.addObject(sketch15)
sketch15.AttachmentSupport = (doc.XZ_Plane, [""])
sketch15.MapMode = "FlatFace"
sketch15.AttachmentOffset = App.Placement(V(0, 0, 35.5), App.Rotation())
sketch15.addGeometry(Part.LineSegment(V(-9.4, -45, 0), V(-7.4, -45, 0)), False)
sketch15.addGeometry(Part.LineSegment(V(-7.4, -45, 0), V(-7.4, -3, 0)), False)
sketch15.addGeometry(Part.LineSegment(V(-7.4, -3, 0), V(2.5, -3, 0)), False)
sketch15.addGeometry(Part.LineSegment(V(2.5, -3, 0), V(2.5, -45, 0)), False)
sketch15.addGeometry(Part.LineSegment(V(2.5, -45, 0), V(4.5, -45, 0)), False)
sketch15.addGeometry(Part.LineSegment(V(4.5, -45, 0), V(4.5, 0, 0)), False)
sketch15.addGeometry(Part.LineSegment(V(4.5, 0, 0), V(-15.6, 0, 0)), False)
sketch15.addGeometry(Part.LineSegment(V(-15.6, 0, 0), V(-15.6, -3, 0)), False)
sketch15.addGeometry(Part.LineSegment(V(-15.6, -3, 0), V(-9.4, -3, 0)), False)
sketch15.addGeometry(Part.LineSegment(V(-9.4, -3, 0), V(-9.4, -45, 0)), False)
sketch15.addConstraint(Sketcher.Constraint("Coincident", 0, 2, 1, 1))
sketch15.addConstraint(Sketcher.Constraint("Coincident", 1, 2, 2, 1))
sketch15.addConstraint(Sketcher.Constraint("Coincident", 2, 2, 3, 1))
sketch15.addConstraint(Sketcher.Constraint("Coincident", 3, 2, 4, 1))
sketch15.addConstraint(Sketcher.Constraint("Coincident", 4, 2, 5, 1))
sketch15.addConstraint(Sketcher.Constraint("Coincident", 5, 2, 6, 1))
sketch15.addConstraint(Sketcher.Constraint("Coincident", 6, 2, 7, 1))
sketch15.addConstraint(Sketcher.Constraint("Coincident", 7, 2, 8, 1))
sketch15.addConstraint(Sketcher.Constraint("Coincident", 8, 2, 9, 1))
sketch15.addConstraint(Sketcher.Constraint("Coincident", 9, 2, 0, 1))
sketch15.addConstraint(Sketcher.Constraint("Horizontal", 0))
sketch15.addConstraint(Sketcher.Constraint("Vertical", 1))
sketch15.addConstraint(Sketcher.Constraint("Horizontal", 2))
sketch15.addConstraint(Sketcher.Constraint("Vertical", 3))
sketch15.addConstraint(Sketcher.Constraint("Horizontal", 4))
sketch15.addConstraint(Sketcher.Constraint("Vertical", 5))
sketch15.addConstraint(Sketcher.Constraint("Horizontal", 6))
sketch15.addConstraint(Sketcher.Constraint("Vertical", 7))
sketch15.addConstraint(Sketcher.Constraint("Horizontal", 8))
sketch15.addConstraint(Sketcher.Constraint("Vertical", 9))
sketch15.addConstraint(Sketcher.Constraint("PointOnObject", 5, 2, -1))
sketch15.addConstraint(Sketcher.Constraint("Horizontal", 0, 2, 3, 2))
sketch15.addConstraint(Sketcher.Constraint("Horizontal", 2, 2, 7, 2))
sketch15.addConstraint(Sketcher.Constraint("Equal", 0, 4))
sketch15.addConstraint(Sketcher.Constraint("DistanceX", 0, 1, 0, 2, 2.0))
sketch15.addConstraint(Sketcher.Constraint("DistanceY", 1, 1, 1, 2, 42.0))
sketch15.addConstraint(Sketcher.Constraint("DistanceY", 5, 1, 5, 2, 45.0))
sketch15.addConstraint(Sketcher.Constraint("DistanceX", 2, 1, 2, 2, 9.9))
sketch15.addConstraint(Sketcher.Constraint("DistanceX", 6, 2, 6, 1, 20.1))
sketch15.addConstraint(Sketcher.Constraint("DistanceX", 0, 2, -1, 1, 7.4))
pocket8 = doc.addObject("PartDesign::Pocket", "Pocket007")
body.addObject(pocket8)
pocket8.Profile = sketch15
pocket8.Length = 5

doc.recompute()
